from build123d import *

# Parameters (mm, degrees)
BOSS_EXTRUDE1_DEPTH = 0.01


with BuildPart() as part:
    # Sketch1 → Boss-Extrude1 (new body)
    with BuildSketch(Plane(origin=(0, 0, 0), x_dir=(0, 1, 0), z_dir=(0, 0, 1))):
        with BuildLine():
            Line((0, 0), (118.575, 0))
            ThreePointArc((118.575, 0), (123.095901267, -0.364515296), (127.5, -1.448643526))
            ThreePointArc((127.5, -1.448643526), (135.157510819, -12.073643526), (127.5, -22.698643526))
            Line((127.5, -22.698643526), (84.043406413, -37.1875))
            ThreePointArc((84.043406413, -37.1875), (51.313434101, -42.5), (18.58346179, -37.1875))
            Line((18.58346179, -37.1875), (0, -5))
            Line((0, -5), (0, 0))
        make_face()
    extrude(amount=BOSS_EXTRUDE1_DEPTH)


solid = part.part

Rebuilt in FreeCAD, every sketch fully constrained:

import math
import FreeCAD as App
import Part
import Sketcher
Q = App.Units.Quantity

doc = App.newDocument("Part")
body = doc.addObject("PartDesign::Body", "Body")

# Sketch on XY plane
sketch1 = doc.addObject("Sketcher::SketchObject", "Sketch")
body.addObject(sketch1)
sketch1.AttachmentSupport = (doc.XY_Plane, [""])
sketch1.MapMode = "FlatFace"
sketch1.addGeometry(Part.LineSegment(App.Vector(0, 118.575, 0), App.Vector(0, 0, 0)), False)
sketch1.addGeometry(Part.LineSegment(App.Vector(0, 0, 0), App.Vector(5, 0, 0)), False)
sketch1.addGeometry(Part.LineSegment(App.Vector(5, 0, 0), App.Vector(37.1875, 18.583462, 0)), False)
sketch1.addGeometry(Part.ArcOfCircle(Part.Circle(App.Vector(-60.979882, 51.313434, 0), App.Vector(0, 0, 1), 103.479882), math.radians(-18.438895), math.radians(18.438895)), False)
sketch1.addGeometry(Part.LineSegment(App.Vector(37.1875, 84.043406, 0), App.Vector(22.698644, 127.5, 0)), False)
sketch1.addGeometry(Part.ArcOfCircle(Part.Circle(App.Vector(12.073644, 123.95752, 0), App.Vector(0, 0, 1), 11.199991), math.radians(18.438895), math.radians(161.561105)), False)
sketch1.addGeometry(Part.ArcOfCircle(Part.Circle(App.Vector(28.217498, 118.575, 0), App.Vector(0, 0, 1), 28.217498), math.radians(161.561105), math.radians(180)), False)
sketch1.addConstraint(Sketcher.Constraint("Coincident", 0, 2, 1, 1))
sketch1.addConstraint(Sketcher.Constraint("Coincident", 1, 2, 2, 1))
sketch1.addConstraint(Sketcher.Constraint("Coincident", 2, 2, 3, 1))
sketch1.addConstraint(Sketcher.Constraint("Tangent", 3, 2, 4, 1))
sketch1.addConstraint(Sketcher.Constraint("Tangent", 4, 2, 5, 1))
sketch1.addConstraint(Sketcher.Constraint("Tangent", 5, 2, 6, 1))
sketch1.addConstraint(Sketcher.Constraint("Tangent", 6, 2, 0, 1))
sketch1.addConstraint(Sketcher.Constraint("Vertical", 0))
sketch1.addConstraint(Sketcher.Constraint("Horizontal", 1))
sketch1.addConstraint(Sketcher.Constraint("Coincident", 0, 2, -1, 1))
sketch1.addConstraint(Sketcher.Constraint("Horizontal", 4, 2, 5, 2))
sketch1.addConstraint(Sketcher.Constraint("Vertical", 2, 2, 3, 2))
sketch1.addConstraint(Sketcher.Constraint("DistanceX", 1, 1, 1, 2, 5.0))
sketch1.addConstraint(Sketcher.Constraint("Angle", 2, Q("30 deg")))
sketch1.addConstraint(Sketcher.Constraint("DistanceY", -1, 1, 4, 2, 127.5))
sketch1.addConstraint(Sketcher.Constraint("Radius", 6, 28.217498))
sketch1.addConstraint(Sketcher.Constraint("DistanceY", 0, 2, 0, 1, 118.575))
sketch1.addConstraint(Sketcher.Constraint("Radius", 3, 103.479882))
sketch1.addConstraint(Sketcher.Constraint("Radius", 5, 11.199991))
pad1 = doc.addObject("PartDesign::Pad", "Pad")
body.addObject(pad1)
pad1.Profile = sketch1
pad1.Length = 0.01

doc.recompute()
